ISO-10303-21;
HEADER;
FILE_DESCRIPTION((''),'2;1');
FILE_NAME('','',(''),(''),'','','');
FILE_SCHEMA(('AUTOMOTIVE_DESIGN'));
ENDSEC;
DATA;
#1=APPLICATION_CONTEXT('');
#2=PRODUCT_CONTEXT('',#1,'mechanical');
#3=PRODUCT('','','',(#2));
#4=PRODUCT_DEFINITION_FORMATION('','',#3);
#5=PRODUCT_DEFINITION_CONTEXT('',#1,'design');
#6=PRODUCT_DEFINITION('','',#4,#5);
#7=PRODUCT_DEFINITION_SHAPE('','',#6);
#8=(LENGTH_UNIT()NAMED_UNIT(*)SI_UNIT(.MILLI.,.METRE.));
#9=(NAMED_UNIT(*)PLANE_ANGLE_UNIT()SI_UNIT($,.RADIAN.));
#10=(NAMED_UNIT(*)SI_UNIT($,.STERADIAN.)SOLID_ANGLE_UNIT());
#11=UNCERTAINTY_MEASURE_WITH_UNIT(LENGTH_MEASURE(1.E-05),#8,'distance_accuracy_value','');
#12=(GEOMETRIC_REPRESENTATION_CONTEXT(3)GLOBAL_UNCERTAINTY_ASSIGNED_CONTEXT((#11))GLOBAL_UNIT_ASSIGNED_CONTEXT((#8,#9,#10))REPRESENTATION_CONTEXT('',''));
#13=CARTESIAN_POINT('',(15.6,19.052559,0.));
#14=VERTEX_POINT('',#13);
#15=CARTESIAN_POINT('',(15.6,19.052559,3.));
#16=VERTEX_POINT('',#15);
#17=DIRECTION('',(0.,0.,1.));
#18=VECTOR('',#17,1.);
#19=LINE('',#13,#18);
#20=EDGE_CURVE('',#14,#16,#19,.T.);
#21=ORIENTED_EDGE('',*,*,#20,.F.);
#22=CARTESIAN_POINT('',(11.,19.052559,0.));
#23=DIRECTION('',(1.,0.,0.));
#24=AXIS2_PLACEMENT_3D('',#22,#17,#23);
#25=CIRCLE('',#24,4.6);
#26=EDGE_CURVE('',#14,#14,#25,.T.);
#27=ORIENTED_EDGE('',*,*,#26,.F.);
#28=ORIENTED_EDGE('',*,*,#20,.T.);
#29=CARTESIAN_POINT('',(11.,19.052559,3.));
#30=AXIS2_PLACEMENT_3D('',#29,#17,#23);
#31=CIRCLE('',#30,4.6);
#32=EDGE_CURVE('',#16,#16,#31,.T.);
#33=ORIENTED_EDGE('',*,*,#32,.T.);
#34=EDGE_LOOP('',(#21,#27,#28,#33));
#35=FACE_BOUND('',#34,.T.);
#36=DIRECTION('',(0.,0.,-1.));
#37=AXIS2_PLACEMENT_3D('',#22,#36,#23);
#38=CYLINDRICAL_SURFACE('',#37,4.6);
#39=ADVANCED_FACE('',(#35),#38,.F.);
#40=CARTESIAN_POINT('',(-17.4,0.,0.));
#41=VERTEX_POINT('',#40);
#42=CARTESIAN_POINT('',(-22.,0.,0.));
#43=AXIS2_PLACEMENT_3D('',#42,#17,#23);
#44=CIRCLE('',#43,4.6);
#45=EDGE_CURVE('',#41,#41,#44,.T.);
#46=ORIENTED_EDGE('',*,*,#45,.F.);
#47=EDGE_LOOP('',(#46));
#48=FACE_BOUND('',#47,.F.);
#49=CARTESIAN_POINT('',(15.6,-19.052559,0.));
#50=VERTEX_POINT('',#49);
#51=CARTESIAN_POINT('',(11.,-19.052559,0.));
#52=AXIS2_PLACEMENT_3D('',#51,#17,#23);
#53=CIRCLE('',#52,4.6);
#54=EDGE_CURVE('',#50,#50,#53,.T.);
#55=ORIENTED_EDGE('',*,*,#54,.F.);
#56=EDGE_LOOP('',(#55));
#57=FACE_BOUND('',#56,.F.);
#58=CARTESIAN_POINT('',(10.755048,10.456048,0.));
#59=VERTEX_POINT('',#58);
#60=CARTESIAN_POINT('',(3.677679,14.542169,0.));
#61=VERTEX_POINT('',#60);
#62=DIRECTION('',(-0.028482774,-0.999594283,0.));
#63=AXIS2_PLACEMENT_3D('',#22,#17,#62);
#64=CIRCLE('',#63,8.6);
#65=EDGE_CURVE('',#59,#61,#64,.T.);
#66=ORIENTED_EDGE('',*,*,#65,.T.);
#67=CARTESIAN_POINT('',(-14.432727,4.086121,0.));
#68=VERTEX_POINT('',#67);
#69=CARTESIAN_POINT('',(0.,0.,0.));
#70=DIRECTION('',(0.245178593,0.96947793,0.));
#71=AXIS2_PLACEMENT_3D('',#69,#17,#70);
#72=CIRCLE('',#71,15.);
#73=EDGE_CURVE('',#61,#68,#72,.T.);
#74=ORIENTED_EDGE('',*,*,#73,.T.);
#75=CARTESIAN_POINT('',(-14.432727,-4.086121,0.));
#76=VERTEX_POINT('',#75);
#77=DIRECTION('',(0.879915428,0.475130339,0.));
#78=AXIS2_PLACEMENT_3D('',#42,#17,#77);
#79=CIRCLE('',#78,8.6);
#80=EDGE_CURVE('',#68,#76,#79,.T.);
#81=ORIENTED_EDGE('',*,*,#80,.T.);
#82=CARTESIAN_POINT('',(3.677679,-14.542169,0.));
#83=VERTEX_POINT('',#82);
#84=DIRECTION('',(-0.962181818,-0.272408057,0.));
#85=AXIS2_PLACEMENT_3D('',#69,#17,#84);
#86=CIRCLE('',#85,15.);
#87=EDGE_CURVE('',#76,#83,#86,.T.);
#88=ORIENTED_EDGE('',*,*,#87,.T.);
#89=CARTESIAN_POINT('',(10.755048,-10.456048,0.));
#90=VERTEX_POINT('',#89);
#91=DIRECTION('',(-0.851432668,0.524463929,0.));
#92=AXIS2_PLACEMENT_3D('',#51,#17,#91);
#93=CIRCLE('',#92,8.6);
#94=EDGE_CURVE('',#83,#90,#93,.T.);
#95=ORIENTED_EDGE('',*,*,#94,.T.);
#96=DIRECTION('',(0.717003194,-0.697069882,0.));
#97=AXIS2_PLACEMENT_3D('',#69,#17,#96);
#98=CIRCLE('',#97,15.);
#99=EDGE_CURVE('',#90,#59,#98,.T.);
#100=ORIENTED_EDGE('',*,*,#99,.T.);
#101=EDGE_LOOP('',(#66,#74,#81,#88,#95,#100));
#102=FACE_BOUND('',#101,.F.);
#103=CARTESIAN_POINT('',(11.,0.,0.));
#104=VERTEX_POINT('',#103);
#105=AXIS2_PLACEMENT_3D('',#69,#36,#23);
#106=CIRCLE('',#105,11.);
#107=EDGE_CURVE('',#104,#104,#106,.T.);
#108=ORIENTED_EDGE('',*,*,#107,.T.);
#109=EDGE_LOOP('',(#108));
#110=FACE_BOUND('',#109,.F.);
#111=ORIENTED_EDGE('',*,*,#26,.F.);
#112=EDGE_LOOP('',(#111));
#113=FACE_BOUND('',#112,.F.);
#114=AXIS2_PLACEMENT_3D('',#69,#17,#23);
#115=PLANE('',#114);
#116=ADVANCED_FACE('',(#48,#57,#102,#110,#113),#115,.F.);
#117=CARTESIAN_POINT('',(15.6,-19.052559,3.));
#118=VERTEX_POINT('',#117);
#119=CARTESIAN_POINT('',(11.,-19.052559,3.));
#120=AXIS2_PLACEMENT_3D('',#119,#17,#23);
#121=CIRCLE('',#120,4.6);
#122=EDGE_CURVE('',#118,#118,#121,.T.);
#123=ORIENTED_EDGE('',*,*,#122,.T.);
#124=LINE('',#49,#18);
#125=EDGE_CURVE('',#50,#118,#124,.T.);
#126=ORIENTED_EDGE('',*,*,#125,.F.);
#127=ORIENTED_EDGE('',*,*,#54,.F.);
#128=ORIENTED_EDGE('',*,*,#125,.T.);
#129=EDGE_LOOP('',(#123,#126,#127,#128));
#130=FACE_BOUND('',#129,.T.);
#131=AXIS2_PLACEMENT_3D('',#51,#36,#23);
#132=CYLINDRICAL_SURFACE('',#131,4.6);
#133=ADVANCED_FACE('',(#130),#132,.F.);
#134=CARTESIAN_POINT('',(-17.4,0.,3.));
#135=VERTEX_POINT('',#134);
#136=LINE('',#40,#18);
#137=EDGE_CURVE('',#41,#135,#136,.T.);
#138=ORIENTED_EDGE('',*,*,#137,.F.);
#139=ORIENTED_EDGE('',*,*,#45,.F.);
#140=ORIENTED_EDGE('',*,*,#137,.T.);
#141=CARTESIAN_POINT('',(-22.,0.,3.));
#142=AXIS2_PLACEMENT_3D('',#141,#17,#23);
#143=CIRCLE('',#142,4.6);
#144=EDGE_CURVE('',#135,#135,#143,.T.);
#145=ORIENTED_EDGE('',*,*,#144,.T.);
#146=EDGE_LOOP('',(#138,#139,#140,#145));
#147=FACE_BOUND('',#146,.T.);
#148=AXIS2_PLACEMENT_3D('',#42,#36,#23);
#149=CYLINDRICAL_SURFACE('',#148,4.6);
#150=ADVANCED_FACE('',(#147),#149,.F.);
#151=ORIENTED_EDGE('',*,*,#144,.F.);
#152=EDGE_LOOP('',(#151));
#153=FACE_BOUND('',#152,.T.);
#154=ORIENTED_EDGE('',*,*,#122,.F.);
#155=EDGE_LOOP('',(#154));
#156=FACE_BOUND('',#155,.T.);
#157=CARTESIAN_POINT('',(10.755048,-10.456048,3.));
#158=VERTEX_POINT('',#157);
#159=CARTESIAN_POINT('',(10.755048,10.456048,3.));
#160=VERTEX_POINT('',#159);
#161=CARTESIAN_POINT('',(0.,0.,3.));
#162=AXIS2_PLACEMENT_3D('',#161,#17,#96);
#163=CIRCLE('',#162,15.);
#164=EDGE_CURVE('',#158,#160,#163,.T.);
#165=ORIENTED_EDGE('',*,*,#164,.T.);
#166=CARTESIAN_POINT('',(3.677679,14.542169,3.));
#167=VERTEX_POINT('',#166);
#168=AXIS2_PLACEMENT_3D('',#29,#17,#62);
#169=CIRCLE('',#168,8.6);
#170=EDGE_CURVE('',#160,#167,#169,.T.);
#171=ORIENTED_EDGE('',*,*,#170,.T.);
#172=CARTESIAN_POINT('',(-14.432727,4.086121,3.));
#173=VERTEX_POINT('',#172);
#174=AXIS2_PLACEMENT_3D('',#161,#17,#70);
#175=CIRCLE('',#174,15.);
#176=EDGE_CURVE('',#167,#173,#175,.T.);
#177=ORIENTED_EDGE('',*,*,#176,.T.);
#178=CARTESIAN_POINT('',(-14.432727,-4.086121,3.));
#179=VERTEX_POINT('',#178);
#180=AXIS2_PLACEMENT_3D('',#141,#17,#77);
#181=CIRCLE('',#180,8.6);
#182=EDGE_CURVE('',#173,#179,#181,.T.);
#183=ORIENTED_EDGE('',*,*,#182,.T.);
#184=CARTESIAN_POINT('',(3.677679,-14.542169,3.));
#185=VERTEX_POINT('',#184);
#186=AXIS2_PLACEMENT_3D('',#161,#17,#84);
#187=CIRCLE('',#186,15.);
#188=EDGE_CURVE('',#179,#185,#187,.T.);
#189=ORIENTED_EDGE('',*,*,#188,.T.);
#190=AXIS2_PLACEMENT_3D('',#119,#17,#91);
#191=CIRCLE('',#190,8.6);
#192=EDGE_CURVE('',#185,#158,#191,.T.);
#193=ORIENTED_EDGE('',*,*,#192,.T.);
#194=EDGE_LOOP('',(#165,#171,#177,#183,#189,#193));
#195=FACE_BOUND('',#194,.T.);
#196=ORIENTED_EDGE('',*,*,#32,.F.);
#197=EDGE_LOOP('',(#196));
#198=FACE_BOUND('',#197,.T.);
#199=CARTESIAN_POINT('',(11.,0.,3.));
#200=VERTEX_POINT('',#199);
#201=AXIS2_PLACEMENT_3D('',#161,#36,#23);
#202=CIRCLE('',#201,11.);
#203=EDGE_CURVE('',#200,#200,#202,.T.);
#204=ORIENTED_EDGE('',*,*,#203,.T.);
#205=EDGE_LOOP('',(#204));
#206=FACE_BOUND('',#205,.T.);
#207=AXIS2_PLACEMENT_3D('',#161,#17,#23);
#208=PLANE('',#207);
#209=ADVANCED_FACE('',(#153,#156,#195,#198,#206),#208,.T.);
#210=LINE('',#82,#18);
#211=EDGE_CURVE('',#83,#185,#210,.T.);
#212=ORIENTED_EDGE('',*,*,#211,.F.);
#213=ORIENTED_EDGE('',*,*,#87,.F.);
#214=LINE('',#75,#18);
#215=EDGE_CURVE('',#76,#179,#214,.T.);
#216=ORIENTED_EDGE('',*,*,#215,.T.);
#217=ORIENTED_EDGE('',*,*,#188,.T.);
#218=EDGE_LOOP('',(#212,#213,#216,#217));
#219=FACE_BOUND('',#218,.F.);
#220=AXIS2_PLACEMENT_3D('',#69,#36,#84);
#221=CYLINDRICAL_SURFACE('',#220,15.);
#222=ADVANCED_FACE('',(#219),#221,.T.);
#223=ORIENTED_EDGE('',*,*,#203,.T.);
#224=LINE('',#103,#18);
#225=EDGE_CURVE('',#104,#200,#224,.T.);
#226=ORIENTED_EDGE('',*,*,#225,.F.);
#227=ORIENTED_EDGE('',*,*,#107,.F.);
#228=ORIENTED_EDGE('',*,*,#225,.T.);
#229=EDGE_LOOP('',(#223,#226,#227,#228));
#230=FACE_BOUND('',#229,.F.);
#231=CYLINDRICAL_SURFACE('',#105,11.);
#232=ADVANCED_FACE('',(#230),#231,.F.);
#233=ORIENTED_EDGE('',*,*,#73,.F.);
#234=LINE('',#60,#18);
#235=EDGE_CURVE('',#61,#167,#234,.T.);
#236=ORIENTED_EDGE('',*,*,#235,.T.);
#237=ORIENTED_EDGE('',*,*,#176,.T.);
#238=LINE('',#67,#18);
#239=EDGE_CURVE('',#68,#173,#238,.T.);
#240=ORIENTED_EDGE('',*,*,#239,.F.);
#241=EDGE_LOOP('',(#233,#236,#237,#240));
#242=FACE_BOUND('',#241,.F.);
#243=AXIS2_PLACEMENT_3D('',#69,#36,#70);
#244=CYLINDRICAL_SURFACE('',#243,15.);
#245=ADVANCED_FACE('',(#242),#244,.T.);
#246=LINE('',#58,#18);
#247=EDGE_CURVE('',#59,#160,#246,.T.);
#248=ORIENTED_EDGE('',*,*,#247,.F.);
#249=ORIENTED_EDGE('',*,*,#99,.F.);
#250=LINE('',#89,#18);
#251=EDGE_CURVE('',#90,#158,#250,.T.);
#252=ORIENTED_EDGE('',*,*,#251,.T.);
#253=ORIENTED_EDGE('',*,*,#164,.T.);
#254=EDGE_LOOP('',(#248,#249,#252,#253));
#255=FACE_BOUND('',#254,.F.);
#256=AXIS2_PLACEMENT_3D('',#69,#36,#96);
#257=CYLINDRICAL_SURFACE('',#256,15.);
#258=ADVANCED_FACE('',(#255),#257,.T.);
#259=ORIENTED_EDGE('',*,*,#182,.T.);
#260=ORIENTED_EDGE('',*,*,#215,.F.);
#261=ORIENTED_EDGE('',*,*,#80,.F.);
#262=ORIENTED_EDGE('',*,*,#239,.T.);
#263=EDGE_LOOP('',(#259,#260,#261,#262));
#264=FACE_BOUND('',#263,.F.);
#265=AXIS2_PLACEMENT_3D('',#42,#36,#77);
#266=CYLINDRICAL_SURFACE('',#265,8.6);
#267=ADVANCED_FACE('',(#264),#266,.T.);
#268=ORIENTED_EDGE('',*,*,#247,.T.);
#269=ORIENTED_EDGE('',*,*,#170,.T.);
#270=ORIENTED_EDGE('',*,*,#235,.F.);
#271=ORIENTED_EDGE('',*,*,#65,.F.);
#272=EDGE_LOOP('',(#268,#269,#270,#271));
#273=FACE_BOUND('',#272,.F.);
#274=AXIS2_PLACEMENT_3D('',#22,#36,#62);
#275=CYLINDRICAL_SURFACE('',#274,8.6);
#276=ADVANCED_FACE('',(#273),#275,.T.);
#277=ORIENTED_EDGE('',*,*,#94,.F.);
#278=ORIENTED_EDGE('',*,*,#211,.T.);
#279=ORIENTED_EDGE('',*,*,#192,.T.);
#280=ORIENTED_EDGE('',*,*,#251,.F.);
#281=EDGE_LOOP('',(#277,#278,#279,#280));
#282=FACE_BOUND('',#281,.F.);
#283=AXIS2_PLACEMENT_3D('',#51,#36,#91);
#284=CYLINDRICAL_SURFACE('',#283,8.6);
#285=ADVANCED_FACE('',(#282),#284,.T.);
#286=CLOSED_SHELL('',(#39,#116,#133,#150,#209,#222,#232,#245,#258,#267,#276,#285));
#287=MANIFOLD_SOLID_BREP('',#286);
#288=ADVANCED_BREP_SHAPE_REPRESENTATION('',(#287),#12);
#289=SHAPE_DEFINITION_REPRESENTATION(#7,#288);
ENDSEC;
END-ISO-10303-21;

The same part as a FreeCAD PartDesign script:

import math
import FreeCAD as App
import Part
import Sketcher

V = App.Vector
Q = App.Units.Quantity

doc = App.newDocument("Part")
body = doc.addObject("PartDesign::Body", "Body")

# Sketch on XY plane
sketch1 = body.newObject("Sketcher::SketchObject", "Sketch")
sketch1.AttachmentSupport = (doc.getObject("XY_Plane"), [""])
sketch1.MapMode = "FlatFace"
sketch1.addGeometry([
    Part.ArcOfCircle(Part.Circle(V(-22, 0, 0), V(0, 0, 1), 8.6), math.radians(28.367837), math.radians(331.632163)),  # 0
    Part.ArcOfCircle(Part.Circle(V(0, 0, 0), V(0, 0, 1), 15), math.radians(-164.192389), math.radians(-75.807612)),  # 1
    Part.ArcOfCircle(Part.Circle(V(11, -19.052559, 0), V(0, 0, 1), 8.6), math.radians(148.367838), math.radians(451.632163)),  # 2
    Part.ArcOfCircle(Part.Circle(V(0, 0, 0), V(0, 0, 1), 15), math.radians(-44.19239), math.radians(44.19239)),  # 3
    Part.ArcOfCircle(Part.Circle(V(11, 19.052559, 0), V(0, 0, 1), 8.6), math.radians(-91.632163), math.radians(211.632162)),  # 4
    Part.ArcOfCircle(Part.Circle(V(0, 0, 0), V(0, 0, 1), 15), math.radians(75.807612), math.radians(164.192389)),  # 5
    Part.Circle(V(11, -19.052559, 0), V(0, 0, 1), 4.6),  # 6
    Part.Circle(V(-22, 0, 0), V(0, 0, 1), 4.6),  # 7
    Part.Circle(V(0, 0, 0), V(0, 0, 1), 11),  # 8
    Part.Circle(V(11, 19.052559, 0), V(0, 0, 1), 4.6),  # 9
], False)
sketch1.addConstraint([
    Sketcher.Constraint("Coincident", 0, 2, 1, 1),
    Sketcher.Constraint("Coincident", 1, 2, 2, 1),
    Sketcher.Constraint("Coincident", 2, 2, 3, 1),
    Sketcher.Constraint("Coincident", 3, 2, 4, 1),
    Sketcher.Constraint("Coincident", 4, 2, 5, 1),
    Sketcher.Constraint("Coincident", 5, 2, 0, 1),
    Sketcher.Constraint("Coincident", 1, 3, -1, 1),
    Sketcher.Constraint("Coincident", 3, 3, -1, 1),
    Sketcher.Constraint("Coincident", 5, 3, -1, 1),
    Sketcher.Constraint("Coincident", 8, 3, -1, 1),
    Sketcher.Constraint("Coincident", 6, 3, 2, 3),
    Sketcher.Constraint("Coincident", 7, 3, 0, 3),
    Sketcher.Constraint("Coincident", 9, 3, 4, 3),
    Sketcher.Constraint("Equal", 0, 2),
    Sketcher.Constraint("Equal", 1, 3),
    Sketcher.Constraint("Equal", 2, 4),
    Sketcher.Constraint("Equal", 3, 5),
    Sketcher.Constraint("Equal", 6, 7),
    Sketcher.Constraint("Equal", 7, 9),
    Sketcher.Constraint("Symmetric", 2, 3, 4, 3, -1),
    Sketcher.Constraint("PointOnObject", 0, 3, -1),
    Sketcher.Constraint("Diameter", 8, Q("22 mm")),
    Sketcher.Constraint("Radius", 1, Q("15 mm")),
    Sketcher.Constraint("Diameter", 6, Q("9.2 mm")),
    Sketcher.Constraint("Radius", 0, Q("8.6 mm")),
    Sketcher.Constraint("DistanceX", 0, 3, -1, 1, Q("22 mm")),
    Sketcher.Constraint("DistanceX", -1, 1, 2, 3, Q("11 mm")),
    Sketcher.Constraint("DistanceY", 2, 3, -1, 1, Q("19.052559 mm")),
])
pad1 = body.newObject("PartDesign::Pad", "Pad")
pad1.Profile = sketch1
pad1.Length = 3

doc.recompute()
